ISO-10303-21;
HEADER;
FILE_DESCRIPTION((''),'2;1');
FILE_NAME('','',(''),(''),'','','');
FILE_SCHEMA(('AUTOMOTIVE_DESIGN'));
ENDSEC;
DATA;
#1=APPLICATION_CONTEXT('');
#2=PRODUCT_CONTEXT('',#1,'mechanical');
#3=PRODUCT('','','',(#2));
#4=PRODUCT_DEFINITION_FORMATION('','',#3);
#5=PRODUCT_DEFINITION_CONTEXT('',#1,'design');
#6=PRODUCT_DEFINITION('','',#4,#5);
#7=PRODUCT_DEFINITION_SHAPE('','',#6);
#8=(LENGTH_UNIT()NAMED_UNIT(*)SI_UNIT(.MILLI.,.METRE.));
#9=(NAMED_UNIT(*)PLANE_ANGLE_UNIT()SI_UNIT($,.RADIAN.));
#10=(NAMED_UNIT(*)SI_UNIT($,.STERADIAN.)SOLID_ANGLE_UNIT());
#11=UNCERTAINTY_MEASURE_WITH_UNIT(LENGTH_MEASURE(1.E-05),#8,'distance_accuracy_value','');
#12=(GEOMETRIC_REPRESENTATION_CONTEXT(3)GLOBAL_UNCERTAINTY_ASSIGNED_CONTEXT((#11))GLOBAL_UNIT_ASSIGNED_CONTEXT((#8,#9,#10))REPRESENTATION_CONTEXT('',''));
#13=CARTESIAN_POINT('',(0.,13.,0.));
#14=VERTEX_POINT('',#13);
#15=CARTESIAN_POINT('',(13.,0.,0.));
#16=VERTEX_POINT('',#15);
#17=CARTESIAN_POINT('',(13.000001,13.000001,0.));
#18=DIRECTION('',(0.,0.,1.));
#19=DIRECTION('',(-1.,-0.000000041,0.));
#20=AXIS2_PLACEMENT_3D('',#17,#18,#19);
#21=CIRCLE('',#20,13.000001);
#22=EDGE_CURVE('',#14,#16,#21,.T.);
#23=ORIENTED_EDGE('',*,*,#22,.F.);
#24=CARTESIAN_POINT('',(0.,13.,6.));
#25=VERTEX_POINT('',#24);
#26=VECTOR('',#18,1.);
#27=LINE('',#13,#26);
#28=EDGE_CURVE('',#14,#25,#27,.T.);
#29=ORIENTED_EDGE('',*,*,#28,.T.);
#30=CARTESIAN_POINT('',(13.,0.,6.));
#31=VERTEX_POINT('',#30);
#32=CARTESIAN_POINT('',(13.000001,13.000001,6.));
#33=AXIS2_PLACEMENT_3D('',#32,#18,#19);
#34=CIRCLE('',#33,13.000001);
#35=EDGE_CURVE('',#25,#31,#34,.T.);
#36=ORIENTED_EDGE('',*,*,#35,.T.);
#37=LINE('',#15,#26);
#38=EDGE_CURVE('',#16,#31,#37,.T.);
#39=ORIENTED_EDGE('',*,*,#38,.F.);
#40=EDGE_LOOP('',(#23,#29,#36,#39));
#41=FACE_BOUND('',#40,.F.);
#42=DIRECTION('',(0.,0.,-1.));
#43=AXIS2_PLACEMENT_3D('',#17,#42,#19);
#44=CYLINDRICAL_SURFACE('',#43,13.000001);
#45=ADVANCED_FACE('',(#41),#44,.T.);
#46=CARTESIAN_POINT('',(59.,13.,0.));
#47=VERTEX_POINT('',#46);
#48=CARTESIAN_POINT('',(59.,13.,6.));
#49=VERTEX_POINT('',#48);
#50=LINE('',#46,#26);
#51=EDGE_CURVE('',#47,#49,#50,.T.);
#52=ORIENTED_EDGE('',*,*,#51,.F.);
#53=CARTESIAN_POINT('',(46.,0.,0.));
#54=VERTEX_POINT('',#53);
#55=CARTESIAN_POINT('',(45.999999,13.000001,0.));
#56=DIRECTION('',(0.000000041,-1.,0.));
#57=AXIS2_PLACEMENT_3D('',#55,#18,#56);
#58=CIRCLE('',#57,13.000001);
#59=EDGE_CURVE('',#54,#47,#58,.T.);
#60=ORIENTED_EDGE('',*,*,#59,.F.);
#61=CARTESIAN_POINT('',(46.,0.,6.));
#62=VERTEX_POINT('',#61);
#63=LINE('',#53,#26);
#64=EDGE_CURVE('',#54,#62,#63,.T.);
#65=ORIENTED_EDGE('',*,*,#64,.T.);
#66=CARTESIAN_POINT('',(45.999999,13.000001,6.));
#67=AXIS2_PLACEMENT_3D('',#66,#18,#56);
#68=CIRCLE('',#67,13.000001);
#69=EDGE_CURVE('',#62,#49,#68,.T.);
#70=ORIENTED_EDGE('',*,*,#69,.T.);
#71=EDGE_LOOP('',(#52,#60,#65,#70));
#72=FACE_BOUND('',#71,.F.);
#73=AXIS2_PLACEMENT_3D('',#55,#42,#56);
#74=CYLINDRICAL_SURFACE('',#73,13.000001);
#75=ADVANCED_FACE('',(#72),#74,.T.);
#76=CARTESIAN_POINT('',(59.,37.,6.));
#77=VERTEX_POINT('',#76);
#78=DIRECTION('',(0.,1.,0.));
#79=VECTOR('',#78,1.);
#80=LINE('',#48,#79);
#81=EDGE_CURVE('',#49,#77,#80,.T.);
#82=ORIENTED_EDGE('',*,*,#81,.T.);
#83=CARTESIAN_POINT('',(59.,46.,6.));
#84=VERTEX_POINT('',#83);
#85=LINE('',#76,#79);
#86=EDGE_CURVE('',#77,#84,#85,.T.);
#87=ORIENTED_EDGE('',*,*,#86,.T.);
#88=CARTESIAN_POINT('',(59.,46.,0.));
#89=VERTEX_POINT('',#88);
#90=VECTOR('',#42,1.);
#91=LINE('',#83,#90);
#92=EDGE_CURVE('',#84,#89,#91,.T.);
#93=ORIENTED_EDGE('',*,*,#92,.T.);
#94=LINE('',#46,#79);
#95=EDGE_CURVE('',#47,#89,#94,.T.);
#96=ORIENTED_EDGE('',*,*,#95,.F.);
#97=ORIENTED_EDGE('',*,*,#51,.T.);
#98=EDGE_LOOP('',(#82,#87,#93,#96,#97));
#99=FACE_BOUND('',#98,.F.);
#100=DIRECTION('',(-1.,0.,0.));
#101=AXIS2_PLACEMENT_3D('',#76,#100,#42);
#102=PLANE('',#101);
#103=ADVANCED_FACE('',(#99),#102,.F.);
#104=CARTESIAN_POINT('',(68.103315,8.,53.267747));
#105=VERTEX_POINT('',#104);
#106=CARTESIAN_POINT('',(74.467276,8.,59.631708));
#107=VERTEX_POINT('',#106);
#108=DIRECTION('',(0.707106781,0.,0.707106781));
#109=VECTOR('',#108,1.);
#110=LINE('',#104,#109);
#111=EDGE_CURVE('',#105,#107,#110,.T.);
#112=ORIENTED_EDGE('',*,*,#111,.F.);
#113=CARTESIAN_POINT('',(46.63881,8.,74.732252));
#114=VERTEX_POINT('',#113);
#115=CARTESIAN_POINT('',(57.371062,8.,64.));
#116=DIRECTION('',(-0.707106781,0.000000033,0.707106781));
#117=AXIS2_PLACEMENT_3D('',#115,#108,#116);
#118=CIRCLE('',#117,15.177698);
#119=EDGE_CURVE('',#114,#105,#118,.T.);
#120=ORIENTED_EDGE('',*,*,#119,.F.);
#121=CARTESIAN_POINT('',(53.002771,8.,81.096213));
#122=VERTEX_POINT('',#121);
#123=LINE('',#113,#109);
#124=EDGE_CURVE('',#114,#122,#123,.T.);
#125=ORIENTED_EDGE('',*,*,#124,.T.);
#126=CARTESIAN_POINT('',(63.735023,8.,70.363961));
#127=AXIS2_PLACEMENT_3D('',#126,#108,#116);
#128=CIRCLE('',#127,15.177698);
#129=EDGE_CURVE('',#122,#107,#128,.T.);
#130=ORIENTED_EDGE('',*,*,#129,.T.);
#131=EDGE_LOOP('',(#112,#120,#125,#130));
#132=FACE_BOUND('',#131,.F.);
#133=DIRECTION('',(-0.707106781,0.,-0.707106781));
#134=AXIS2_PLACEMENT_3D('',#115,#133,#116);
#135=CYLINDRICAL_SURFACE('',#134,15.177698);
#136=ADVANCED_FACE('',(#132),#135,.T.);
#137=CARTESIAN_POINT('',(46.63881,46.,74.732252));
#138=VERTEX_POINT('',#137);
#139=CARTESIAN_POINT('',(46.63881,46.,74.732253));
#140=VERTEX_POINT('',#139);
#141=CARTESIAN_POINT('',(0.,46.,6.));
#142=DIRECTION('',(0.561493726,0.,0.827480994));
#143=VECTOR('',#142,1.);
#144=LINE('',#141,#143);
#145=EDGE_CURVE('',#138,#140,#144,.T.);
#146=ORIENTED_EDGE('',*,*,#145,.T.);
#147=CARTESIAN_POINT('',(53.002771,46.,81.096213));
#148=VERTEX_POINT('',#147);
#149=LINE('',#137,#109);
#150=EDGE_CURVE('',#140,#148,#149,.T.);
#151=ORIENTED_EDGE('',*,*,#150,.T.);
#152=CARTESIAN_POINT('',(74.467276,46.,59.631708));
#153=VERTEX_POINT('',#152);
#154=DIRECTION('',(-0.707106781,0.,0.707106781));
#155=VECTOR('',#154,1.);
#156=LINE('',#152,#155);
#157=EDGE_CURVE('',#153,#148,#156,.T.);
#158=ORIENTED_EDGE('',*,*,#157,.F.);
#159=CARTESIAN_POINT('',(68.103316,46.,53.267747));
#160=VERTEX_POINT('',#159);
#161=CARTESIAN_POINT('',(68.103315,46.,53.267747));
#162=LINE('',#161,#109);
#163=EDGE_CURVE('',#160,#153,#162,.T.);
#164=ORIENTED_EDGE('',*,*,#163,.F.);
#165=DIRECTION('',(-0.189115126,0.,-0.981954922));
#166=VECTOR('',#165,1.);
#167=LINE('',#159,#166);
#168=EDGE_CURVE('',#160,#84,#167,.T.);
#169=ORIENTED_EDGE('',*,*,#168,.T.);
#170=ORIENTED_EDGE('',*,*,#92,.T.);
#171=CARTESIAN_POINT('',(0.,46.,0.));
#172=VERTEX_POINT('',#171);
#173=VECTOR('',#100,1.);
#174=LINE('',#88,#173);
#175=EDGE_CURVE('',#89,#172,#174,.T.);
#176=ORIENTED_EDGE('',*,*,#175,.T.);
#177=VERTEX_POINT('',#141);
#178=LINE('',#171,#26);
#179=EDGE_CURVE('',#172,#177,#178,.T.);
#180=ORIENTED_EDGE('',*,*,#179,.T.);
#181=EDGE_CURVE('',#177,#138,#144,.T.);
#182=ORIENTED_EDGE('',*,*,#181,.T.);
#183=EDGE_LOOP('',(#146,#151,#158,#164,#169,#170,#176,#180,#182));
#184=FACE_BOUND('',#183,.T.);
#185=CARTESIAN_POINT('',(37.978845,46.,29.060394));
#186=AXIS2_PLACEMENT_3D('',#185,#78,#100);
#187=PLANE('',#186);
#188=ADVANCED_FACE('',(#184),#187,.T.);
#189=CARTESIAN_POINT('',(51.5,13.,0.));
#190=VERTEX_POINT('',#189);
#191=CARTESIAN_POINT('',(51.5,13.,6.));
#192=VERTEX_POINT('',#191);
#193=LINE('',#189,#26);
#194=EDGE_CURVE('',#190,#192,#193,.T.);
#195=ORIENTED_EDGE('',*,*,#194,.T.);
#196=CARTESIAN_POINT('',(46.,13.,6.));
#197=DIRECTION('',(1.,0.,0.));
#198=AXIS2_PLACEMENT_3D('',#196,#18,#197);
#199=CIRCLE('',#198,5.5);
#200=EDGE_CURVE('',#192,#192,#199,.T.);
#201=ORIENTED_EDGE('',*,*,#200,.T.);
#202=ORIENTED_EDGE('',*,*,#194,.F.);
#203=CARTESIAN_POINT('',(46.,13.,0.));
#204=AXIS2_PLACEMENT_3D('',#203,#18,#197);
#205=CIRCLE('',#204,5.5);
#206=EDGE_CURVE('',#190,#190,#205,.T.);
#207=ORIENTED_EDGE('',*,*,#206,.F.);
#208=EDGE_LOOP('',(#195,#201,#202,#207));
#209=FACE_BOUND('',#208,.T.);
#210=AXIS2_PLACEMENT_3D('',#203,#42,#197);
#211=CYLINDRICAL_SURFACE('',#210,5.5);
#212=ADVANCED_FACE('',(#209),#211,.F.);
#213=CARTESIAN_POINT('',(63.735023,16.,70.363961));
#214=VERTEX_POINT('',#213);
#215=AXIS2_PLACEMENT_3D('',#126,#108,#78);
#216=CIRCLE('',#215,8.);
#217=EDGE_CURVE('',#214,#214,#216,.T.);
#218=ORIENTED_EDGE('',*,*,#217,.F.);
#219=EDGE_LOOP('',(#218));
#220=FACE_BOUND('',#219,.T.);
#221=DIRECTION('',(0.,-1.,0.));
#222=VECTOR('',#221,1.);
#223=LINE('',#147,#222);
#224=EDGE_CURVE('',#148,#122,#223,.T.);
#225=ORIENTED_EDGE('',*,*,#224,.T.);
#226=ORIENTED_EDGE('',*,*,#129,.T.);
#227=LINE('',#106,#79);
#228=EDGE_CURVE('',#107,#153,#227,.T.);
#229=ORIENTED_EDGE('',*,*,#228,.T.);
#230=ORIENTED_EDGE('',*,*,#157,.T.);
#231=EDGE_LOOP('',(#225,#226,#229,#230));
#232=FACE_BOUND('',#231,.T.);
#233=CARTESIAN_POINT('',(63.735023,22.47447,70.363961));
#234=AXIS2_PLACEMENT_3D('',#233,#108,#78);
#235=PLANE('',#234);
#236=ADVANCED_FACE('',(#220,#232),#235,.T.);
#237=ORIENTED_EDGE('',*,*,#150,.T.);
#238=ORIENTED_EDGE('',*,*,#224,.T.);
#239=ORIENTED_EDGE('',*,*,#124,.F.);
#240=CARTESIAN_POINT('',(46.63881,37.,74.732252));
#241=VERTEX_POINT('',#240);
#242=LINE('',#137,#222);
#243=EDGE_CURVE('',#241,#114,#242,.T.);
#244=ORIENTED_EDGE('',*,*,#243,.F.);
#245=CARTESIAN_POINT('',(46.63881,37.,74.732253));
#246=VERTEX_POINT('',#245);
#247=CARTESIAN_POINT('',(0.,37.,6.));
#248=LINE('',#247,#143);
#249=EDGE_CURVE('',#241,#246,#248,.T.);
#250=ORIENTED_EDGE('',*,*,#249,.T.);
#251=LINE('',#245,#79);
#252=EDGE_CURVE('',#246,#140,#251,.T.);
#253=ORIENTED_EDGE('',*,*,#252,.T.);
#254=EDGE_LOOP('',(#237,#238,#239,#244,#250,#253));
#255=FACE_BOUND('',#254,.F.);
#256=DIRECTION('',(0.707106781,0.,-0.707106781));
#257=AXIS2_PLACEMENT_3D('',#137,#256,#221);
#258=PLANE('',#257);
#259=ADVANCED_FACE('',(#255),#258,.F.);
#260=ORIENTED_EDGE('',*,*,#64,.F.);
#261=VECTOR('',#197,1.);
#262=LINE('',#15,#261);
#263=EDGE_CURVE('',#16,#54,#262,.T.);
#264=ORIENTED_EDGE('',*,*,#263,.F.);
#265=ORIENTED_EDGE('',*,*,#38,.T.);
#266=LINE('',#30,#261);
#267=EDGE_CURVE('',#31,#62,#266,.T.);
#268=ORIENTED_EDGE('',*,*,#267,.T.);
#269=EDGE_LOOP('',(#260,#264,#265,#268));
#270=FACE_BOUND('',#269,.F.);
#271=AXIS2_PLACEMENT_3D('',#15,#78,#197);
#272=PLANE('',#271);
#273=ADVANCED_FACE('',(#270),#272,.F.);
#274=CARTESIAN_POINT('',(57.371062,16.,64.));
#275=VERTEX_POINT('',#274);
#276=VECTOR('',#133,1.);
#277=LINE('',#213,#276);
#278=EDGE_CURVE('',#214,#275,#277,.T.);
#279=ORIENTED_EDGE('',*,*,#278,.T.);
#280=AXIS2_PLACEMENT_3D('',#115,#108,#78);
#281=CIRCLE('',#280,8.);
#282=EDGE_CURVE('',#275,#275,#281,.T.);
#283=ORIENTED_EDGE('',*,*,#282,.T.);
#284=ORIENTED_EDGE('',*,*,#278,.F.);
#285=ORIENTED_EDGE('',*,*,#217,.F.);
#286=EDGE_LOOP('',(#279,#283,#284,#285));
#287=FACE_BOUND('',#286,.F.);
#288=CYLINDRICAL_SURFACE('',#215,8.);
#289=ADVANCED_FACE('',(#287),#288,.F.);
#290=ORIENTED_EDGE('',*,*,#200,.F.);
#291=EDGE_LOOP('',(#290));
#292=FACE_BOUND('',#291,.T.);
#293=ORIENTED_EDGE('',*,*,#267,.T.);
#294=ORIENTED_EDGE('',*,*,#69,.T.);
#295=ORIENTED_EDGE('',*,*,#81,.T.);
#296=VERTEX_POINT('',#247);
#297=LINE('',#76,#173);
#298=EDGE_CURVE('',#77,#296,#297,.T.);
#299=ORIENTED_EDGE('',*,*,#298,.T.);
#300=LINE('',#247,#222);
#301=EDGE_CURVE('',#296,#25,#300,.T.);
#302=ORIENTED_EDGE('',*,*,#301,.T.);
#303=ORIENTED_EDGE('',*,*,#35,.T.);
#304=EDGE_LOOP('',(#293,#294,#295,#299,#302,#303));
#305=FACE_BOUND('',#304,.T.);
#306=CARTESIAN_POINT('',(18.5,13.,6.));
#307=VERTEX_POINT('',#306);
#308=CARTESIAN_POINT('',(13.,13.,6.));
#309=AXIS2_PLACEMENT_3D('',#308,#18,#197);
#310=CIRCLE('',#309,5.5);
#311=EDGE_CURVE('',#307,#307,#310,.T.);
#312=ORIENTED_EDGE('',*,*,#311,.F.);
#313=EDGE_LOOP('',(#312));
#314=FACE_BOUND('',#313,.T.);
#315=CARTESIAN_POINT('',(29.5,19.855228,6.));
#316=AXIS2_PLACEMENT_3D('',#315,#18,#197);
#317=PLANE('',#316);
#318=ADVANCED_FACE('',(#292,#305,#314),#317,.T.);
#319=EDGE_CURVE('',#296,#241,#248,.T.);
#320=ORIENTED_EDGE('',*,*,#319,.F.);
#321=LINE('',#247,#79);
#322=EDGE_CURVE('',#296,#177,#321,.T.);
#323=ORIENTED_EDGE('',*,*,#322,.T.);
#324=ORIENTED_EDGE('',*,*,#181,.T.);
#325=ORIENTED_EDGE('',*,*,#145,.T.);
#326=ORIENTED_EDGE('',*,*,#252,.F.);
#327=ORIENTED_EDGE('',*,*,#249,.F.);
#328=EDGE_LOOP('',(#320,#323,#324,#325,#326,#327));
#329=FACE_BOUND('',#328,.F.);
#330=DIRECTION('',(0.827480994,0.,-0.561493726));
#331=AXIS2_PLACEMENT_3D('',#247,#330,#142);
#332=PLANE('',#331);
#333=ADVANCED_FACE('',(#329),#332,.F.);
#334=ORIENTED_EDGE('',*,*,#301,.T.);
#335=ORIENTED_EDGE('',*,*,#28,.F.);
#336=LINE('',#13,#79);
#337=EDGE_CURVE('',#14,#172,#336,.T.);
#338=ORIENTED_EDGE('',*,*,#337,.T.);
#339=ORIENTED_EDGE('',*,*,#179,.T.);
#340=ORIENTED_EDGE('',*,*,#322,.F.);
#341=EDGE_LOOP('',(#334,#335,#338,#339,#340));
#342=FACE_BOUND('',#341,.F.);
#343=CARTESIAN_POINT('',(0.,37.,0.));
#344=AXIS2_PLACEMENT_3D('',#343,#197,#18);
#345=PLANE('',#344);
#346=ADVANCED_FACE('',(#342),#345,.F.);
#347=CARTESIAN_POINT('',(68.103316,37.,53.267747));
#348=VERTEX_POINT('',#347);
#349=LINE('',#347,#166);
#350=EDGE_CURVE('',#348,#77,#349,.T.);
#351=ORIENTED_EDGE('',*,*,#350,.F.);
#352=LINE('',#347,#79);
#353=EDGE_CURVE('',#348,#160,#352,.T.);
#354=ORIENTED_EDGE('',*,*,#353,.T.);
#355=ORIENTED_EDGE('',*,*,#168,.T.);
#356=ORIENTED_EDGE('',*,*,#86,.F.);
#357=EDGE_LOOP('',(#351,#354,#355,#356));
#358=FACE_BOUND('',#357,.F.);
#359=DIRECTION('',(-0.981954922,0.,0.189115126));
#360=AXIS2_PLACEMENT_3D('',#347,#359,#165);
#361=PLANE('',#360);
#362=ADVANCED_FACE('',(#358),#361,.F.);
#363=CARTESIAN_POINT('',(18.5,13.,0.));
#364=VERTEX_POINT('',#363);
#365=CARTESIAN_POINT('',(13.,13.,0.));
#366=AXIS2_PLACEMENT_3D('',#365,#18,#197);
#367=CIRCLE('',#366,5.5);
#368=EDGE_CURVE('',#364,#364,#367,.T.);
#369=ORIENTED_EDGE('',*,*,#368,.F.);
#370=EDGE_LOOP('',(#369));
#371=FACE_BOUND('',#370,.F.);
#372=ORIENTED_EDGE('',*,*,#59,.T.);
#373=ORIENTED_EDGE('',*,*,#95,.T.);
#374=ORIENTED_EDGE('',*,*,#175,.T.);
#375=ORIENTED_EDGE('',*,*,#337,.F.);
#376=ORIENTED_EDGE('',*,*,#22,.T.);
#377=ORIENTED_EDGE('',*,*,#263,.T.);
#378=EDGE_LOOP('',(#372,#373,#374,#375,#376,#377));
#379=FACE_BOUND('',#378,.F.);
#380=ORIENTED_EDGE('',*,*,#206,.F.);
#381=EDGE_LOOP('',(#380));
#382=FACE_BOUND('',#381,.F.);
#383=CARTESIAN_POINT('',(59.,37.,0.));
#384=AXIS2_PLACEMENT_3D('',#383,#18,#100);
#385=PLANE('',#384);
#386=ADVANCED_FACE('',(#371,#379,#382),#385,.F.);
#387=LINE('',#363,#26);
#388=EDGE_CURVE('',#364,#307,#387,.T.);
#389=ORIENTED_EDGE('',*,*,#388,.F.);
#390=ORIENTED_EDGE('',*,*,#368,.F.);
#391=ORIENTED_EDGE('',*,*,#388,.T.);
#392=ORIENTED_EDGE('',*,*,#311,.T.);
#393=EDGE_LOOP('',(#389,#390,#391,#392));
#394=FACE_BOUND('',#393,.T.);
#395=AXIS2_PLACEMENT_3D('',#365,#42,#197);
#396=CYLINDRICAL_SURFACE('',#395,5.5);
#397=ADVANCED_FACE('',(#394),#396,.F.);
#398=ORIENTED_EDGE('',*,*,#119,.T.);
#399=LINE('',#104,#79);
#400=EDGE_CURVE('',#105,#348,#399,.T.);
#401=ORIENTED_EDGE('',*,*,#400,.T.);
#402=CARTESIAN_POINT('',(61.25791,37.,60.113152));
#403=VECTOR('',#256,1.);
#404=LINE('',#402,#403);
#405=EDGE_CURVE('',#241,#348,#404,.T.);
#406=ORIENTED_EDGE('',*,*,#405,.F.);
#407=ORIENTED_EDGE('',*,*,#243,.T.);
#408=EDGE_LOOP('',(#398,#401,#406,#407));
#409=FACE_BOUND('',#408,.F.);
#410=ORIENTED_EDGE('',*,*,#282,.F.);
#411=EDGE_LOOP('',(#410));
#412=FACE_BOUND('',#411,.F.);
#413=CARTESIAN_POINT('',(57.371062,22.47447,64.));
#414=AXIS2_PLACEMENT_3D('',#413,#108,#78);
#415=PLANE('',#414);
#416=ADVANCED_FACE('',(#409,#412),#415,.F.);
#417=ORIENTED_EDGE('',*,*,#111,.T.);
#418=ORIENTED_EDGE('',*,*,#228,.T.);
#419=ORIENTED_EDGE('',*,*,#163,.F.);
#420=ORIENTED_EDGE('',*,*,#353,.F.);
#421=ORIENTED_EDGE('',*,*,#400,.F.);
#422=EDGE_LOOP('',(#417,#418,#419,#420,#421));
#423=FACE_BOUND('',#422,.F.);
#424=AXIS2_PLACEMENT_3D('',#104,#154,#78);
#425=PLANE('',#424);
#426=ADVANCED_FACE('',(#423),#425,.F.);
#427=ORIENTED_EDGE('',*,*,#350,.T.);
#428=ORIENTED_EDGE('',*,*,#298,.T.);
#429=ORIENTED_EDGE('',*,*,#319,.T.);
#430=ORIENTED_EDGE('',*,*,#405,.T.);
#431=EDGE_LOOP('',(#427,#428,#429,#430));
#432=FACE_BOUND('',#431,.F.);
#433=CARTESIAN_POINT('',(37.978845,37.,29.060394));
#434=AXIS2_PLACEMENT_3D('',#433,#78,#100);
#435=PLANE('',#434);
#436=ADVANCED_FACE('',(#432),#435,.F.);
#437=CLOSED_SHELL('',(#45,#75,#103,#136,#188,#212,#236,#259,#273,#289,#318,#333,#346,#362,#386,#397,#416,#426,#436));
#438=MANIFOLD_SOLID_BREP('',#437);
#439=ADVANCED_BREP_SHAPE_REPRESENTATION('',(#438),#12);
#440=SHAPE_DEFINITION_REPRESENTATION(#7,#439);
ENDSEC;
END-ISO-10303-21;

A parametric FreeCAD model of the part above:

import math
import FreeCAD as App
import Part
import Sketcher
from FreeCAD import Vector
Q = App.Units.Quantity

doc = App.newDocument("Part")
body = doc.addObject("PartDesign::Body", "Body")

sketch1 = body.newObject("Sketcher::SketchObject", "Sketch")
sketch1.AttachmentSupport = (doc.getObject("XY_Plane"), [""])
sketch1.MapMode = "FlatFace"
sketch1.addGeometry([
    Part.LineSegment(Vector(59, 37, 0), Vector(0, 37, 0)),
    Part.LineSegment(Vector(0, 37, 0), Vector(0, 13, 0)),
    Part.ArcOfCircle(Part.Circle(Vector(13, 13, 0), Vector(0, 0, 1), 13), math.radians(-180), math.radians(-90)),
    Part.LineSegment(Vector(13, 0, 0), Vector(46, 0, 0)),
    Part.ArcOfCircle(Part.Circle(Vector(46, 13, 0), Vector(0, 0, 1), 13), math.radians(-90), math.radians(0)),
    Part.LineSegment(Vector(59, 13, 0), Vector(59, 37, 0)),
    Part.Circle(Vector(13, 13, 0), Vector(0, 0, 1), 6),
    Part.Circle(Vector(46, 13, 0), Vector(0, 0, 1), 6),
], False)
sketch1.addConstraint([
    Sketcher.Constraint("Coincident", 0, 2, 1, 1),
    Sketcher.Constraint("Tangent", 1, 2, 2, 1),
    Sketcher.Constraint("Tangent", 2, 2, 3, 1),
    Sketcher.Constraint("Tangent", 3, 2, 4, 1),
    Sketcher.Constraint("Tangent", 4, 2, 5, 1),
    Sketcher.Constraint("Coincident", 5, 2, 0, 1),
    Sketcher.Constraint("Horizontal", 0),
    Sketcher.Constraint("Vertical", 1),
    Sketcher.Constraint("Horizontal", 3),
    Sketcher.Constraint("Vertical", 5),
    Sketcher.Constraint("Coincident", 6, 3, 2, 3),
    Sketcher.Constraint("Coincident", 7, 3, 4, 3),
    Sketcher.Constraint("Equal", 2, 4),
    Sketcher.Constraint("Equal", 6, 7),
    Sketcher.Constraint("PointOnObject", 0, 2, -2),
    Sketcher.Constraint("PointOnObject", 2, 2, -1),
    Sketcher.Constraint("Diameter", 6, Q("11 mm")),
    Sketcher.Constraint("Radius", 2, Q("13.000001 mm")),
    Sketcher.Constraint("DistanceX", 0, 2, 0, 1, Q("59 mm")),
    Sketcher.Constraint("DistanceY", 1, 2, 1, 1, Q("24 mm")),
])
pad1 = body.newObject("PartDesign::Pad", "Pad")
pad1.Profile = sketch1
pad1.Length = 6

sketch2 = body.newObject("Sketcher::SketchObject", "Sketch001")
sketch2.AttachmentSupport = (doc.getObject("XZ_Plane"), [""])
sketch2.MapMode = "FlatFace"
sketch2.AttachmentOffset = App.Placement(Vector(0, 0, -37), App.Rotation())
sketch2.addGeometry([
    Part.LineSegment(Vector(68, 53, 0), Vector(59, 6, 0)),
    Part.LineSegment(Vector(59, 6, 0), Vector(59, 0, 0)),
    Part.LineSegment(Vector(59, 0, 0), Vector(0, 0, 0)),
    Part.LineSegment(Vector(0, 0, 0), Vector(0, 6, 0)),
    Part.LineSegment(Vector(0, 6, 0), Vector(47, 75, 0)),
    Part.LineSegment(Vector(47, 75, 0), Vector(68, 53, 0)),
], False)
sketch2.addConstraint([
    Sketcher.Constraint("Coincident", 0, 2, 1, 1),
    Sketcher.Constraint("Coincident", 1, 2, 2, 1),
    Sketcher.Constraint("Coincident", 2, 2, 3, 1),
    Sketcher.Constraint("Coincident", 3, 2, 4, 1),
    Sketcher.Constraint("Coincident", 4, 2, 5, 1),
    Sketcher.Constraint("Coincident", 5, 2, 0, 1),
    Sketcher.Constraint("Vertical", 1),
    Sketcher.Constraint("Horizontal", 2),
    Sketcher.Constraint("Vertical", 3),
    Sketcher.Constraint("Coincident", 2, 2, -1, 1),
    Sketcher.Constraint("Horizontal", 0, 2, 3, 2),
    Sketcher.Constraint("DistanceX", 2, 2, 2, 1, Q("59 mm")),
    Sketcher.Constraint("DistanceY", 1, 2, 1, 1, Q("6 mm")),
    Sketcher.Constraint("Angle", 5, Q("-45 deg")),
    Sketcher.Constraint("Distance", 0, Q("48.136372 mm")),
    Sketcher.Constraint("DistanceX", -1, 1, 4, 2, Q("46.63881 mm")),
    Sketcher.Constraint("Distance", 4, Q("83.062032 mm")),
])
pad2 = body.newObject("PartDesign::Pad", "Pad001")
pad2.Profile = sketch2
pad2.Length = 9
pad2.Reversed = True

sketch3 = body.newObject("Sketcher::SketchObject", "Sketch002")
sketch3.Placement = App.Placement(Vector(60.685531, 0, 60.685531), App.Rotation(Vector(0, 1, 0), Vector(-0.707106781, 0, 0.707106781), Vector(0.707106781, 0, 0.707106781), "ZXY"))
sketch3.addGeometry([
    Part.LineSegment(Vector(46, 20, 0), Vector(8, 20, 0)),
    Part.ArcOfCircle(Part.Circle(Vector(8, 5, 0), Vector(0, 0, 1), 15), math.radians(90), math.radians(270)),
    Part.LineSegment(Vector(8, -10, 0), Vector(46, -10, 0)),
    Part.LineSegment(Vector(46, -10, 0), Vector(46, 20, 0)),
], False)
sketch3.addConstraint([
    Sketcher.Constraint("Tangent", 0, 2, 1, 1),
    Sketcher.Constraint("Tangent", 1, 2, 2, 1),
    Sketcher.Constraint("Coincident", 2, 2, 3, 1),
    Sketcher.Constraint("Coincident", 3, 2, 0, 1),
    Sketcher.Constraint("Horizontal", 0),
    Sketcher.Constraint("Horizontal", 2),
    Sketcher.Constraint("Vertical", 3),
    Sketcher.Constraint("DistanceX", 0, 2, 0, 1, Q("38 mm")),
    Sketcher.Constraint("DistanceX", -1, 1, 1, 3, Q("8 mm")),
    Sketcher.Constraint("Radius", 1, Q("15.177698 mm")),
    Sketcher.Constraint("DistanceY", 1, 2, -1, 1, Q("10.490331 mm")),
])
pad3 = body.newObject("PartDesign::Pad", "Pad002")
pad3.Profile = sketch3
pad3.Length = 9

sketch4 = body.newObject("Sketcher::SketchObject", "Sketch003")
sketch4.Placement = App.Placement(Vector(67.049492, 0, 67.049492), App.Rotation(Vector(0, 1, 0), Vector(-0.707106781, 0, 0.707106781), Vector(0.707106781, 0, 0.707106781), "ZXY"))
sketch4.addGeometry(Part.Circle(Vector(8, 5, 0), Vector(0, 0, 1), 8), False)
sketch4.addConstraint([
    Sketcher.Constraint("Diameter", 0, Q("16 mm")),
    Sketcher.Constraint("DistanceX", -1, 1, 0, 3, Q("8 mm")),
    Sketcher.Constraint("DistanceY", -1, 1, 0, 3, Q("4.687367 mm")),
])
pocket1 = body.newObject("PartDesign::Pocket", "Pocket")
pocket1.Profile = sketch4
pocket1.Length = 9

doc.recompute()
